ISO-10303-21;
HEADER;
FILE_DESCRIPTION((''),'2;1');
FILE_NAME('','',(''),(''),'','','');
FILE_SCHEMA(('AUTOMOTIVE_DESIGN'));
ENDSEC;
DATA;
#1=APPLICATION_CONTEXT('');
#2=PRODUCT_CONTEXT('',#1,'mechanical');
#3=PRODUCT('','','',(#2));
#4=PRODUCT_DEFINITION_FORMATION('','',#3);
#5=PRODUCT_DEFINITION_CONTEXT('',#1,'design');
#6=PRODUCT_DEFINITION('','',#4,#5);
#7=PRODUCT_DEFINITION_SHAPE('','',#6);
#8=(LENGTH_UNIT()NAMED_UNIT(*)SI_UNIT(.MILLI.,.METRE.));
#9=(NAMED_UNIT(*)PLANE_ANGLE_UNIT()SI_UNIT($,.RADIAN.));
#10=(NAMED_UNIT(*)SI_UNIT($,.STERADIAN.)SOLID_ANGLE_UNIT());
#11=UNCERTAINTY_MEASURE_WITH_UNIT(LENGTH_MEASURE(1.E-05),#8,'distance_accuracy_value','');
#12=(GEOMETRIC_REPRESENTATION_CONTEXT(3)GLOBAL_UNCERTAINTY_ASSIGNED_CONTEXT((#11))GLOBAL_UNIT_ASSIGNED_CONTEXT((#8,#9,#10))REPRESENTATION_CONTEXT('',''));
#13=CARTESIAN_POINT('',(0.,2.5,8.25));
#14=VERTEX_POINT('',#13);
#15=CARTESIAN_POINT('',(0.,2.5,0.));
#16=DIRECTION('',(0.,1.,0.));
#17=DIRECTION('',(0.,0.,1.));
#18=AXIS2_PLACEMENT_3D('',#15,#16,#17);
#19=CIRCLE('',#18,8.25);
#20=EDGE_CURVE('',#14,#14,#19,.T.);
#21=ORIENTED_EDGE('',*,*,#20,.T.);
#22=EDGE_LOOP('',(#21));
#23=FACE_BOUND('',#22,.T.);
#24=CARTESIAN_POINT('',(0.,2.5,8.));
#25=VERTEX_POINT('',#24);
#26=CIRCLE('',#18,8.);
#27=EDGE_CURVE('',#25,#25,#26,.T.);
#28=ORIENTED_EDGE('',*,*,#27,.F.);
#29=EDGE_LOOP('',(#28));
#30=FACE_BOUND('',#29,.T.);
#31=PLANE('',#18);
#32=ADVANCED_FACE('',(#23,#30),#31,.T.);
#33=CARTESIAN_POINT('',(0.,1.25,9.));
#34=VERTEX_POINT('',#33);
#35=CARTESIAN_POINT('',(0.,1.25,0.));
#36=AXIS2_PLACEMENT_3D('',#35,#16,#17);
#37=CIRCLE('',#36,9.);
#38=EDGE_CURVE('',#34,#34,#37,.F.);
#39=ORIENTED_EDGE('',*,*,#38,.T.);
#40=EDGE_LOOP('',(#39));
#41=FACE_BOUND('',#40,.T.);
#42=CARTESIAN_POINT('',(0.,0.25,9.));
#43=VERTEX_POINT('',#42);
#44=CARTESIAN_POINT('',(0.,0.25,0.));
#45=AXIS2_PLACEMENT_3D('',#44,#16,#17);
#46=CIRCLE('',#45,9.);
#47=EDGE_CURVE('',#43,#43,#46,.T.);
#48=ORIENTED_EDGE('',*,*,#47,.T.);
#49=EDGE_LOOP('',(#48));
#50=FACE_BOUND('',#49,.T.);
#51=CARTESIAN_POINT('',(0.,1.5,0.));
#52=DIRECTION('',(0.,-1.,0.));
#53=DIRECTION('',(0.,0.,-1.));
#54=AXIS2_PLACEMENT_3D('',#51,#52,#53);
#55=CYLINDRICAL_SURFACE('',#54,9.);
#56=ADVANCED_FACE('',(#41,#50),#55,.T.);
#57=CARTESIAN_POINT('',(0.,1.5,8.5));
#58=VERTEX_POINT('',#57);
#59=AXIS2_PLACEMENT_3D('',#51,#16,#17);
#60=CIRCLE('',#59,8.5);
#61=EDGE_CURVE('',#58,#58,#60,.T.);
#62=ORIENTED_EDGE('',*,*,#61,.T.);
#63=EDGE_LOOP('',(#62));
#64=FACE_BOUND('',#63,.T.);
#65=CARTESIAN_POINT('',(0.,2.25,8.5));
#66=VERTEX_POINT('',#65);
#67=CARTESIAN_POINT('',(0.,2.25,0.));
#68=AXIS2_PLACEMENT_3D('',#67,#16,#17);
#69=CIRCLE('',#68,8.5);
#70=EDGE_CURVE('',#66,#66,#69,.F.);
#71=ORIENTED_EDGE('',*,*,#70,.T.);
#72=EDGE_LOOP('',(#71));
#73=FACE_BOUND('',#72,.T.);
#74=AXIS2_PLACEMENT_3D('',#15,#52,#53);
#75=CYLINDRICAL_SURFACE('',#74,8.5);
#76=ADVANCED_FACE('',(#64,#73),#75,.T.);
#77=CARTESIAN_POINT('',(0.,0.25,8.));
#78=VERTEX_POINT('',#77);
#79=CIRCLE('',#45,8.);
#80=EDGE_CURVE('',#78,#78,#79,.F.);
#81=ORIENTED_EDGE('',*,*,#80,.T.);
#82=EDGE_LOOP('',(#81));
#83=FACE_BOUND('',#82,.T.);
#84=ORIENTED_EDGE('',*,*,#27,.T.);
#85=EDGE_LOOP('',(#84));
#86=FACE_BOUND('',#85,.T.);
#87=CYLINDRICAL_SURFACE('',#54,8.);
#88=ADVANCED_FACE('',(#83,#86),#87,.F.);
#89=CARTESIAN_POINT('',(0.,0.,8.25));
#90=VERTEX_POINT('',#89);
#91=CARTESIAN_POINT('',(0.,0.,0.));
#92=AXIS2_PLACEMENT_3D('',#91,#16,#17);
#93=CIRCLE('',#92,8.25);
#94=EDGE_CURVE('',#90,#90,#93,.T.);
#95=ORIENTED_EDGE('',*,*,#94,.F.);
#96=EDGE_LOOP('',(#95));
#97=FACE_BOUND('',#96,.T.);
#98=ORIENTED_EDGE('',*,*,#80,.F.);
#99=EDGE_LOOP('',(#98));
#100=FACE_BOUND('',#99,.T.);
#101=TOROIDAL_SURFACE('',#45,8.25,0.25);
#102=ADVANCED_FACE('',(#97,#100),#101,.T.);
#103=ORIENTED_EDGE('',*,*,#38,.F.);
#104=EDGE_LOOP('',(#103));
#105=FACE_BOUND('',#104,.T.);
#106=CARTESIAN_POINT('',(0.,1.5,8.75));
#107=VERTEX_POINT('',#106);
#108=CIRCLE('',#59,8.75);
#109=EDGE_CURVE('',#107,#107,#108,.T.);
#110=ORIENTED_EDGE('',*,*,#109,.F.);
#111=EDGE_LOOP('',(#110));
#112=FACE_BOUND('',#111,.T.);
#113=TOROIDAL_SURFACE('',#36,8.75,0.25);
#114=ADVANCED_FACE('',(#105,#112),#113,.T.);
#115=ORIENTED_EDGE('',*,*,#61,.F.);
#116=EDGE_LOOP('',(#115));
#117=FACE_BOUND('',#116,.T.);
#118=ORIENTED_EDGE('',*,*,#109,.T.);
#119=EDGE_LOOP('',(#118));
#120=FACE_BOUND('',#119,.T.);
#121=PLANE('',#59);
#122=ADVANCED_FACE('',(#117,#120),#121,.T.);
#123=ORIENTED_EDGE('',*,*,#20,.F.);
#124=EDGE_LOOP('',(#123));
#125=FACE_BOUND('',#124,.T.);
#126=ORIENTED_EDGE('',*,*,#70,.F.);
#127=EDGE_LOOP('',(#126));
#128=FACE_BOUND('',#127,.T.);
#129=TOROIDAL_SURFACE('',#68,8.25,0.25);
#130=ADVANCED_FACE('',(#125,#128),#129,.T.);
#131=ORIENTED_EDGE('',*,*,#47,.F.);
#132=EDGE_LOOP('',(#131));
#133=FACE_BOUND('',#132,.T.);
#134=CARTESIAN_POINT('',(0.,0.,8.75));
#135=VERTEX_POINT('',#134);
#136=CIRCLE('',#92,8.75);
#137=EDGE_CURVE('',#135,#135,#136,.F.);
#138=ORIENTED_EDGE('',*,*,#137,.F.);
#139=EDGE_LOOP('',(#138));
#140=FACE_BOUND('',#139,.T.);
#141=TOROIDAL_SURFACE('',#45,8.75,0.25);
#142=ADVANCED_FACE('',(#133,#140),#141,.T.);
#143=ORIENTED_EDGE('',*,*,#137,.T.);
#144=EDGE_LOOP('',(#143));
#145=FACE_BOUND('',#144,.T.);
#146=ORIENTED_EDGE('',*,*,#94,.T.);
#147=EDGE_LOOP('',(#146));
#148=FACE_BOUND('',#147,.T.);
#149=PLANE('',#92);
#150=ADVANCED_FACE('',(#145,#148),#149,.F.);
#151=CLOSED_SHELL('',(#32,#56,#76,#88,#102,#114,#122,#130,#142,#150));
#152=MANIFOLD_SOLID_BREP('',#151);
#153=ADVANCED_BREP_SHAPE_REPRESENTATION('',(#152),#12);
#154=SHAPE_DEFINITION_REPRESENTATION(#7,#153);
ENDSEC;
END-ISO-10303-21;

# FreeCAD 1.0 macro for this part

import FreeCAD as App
import Part
import Sketcher

V = App.Vector


def edges_at(feature, points):
    """Names of the edges that pass closest to the given points."""
    edges = feature.Shape.Edges
    near = lambda p: min(range(len(edges)), key=lambda i: edges[i].distToShape(Part.Vertex(*p))[0])
    return sorted({f"Edge{near(p) + 1}" for p in points})


def faces_at(feature, points):
    """Names of the faces that lie closest to the given points."""
    faces = feature.Shape.Faces
    near = lambda p: min(range(len(faces)), key=lambda i: faces[i].distToShape(Part.Vertex(*p))[0])
    return sorted({f"Face{near(p) + 1}" for p in points})

doc = App.newDocument("Part")
params = doc.addObject("Spreadsheet::Sheet", "Params")
for row, (alias, value) in enumerate([
    ("sketch1_diameter", "18 mm"),
    ("pad1_length", "1.5 mm"),
    ("sketch2_diameter", "17 mm"),
    ("pad2_length", "1 mm"),
    ("thickness_wall", "1 mm"),
    ("sketch3_diameter", "16 mm"),
    ("fillet_radius", "0.25 mm"),
    ("fillet2_radius", "0.25 mm"),
    ("fillet3_radius", "0.25 mm"),
    ("fillet4_radius", "0.25 mm"),
], start=1):
    params.set(f"A{row}", alias)
    params.set(f"B{row}", "=" + value)
    params.setAlias(f"B{row}", alias)

body = doc.addObject("PartDesign::Body", "Body")

# Sketch on XZ plane
sketch1 = body.newObject("Sketcher::SketchObject", "Sketch")
sketch1.AttachmentSupport = (doc.getObject("XZ_Plane"), [""])
sketch1.MapMode = "FlatFace"
sketch1.addGeometry(Part.Circle(V(0, 0, 0), V(0, 0, 1), 9), False)
sketch1.addConstraint(Sketcher.Constraint("Coincident", 0, 3, -1, 1))
sketch1.addConstraint(Sketcher.Constraint("Diameter", 0, 18.0))
sketch1.setExpression("Constraints[1]", "Params.sketch1_diameter")
pad1 = body.newObject("PartDesign::Pad", "Pad")
pad1.Profile = sketch1
pad1.setExpression("Length", "Params.pad1_length")
pad1.Reversed = True

# Sketch on XZ plane
sketch2 = body.newObject("Sketcher::SketchObject", "Sketch001")
sketch2.AttachmentSupport = (doc.getObject("XZ_Plane"), [""])
sketch2.MapMode = "FlatFace"
sketch2.AttachmentOffset = App.Placement(V(0, 0, -1.5), App.Rotation())
sketch2.addGeometry(Part.Circle(V(0, 0, 0), V(0, 0, 1), 8), False)
sketch2.addConstraint(Sketcher.Constraint("Coincident", 0, 3, -1, 1))
sketch2.addConstraint(Sketcher.Constraint("Diameter", 0, 17.0))
sketch2.setExpression("Constraints[1]", "Params.sketch2_diameter")
pad2 = body.newObject("PartDesign::Pad", "Pad001")
pad2.Profile = sketch2
pad2.setExpression("Length", "Params.pad2_length")
pad2.Reversed = True
doc.recompute()

thickness = body.newObject("PartDesign::Thickness", "Thickness")
thickness.Base = (pad2, faces_at(pad2, [(0, 0, 0)]))
thickness.setExpression("Value", "Params.thickness_wall")
thickness.Reversed = True
thickness.Join = "Intersection"

# Sketch on XZ plane
sketch3 = body.newObject("Sketcher::SketchObject", "Sketch002")
sketch3.AttachmentSupport = (doc.getObject("XZ_Plane"), [""])
sketch3.MapMode = "FlatFace"
sketch3.AttachmentOffset = App.Placement(V(0, 0, -2.5), App.Rotation())
sketch3.addGeometry(Part.Circle(V(0, 0, 0), V(0, 0, 1), 8), False)
sketch3.addConstraint(Sketcher.Constraint("Coincident", 0, 3, -1, 1))
sketch3.addConstraint(Sketcher.Constraint("Diameter", 0, 16.0))
sketch3.setExpression("Constraints[1]", "Params.sketch3_diameter")
pocket1 = body.newObject("PartDesign::Pocket", "Pocket")
pocket1.Profile = sketch3
pocket1.Type = "ThroughAll"
pocket1.Reversed = True
doc.recompute()

fillet = body.newObject("PartDesign::Fillet", "Fillet")
fillet.Base = (pocket1, edges_at(pocket1, [(0, 1.5, -9)]))
fillet.setExpression("Radius", "Params.fillet_radius")
doc.recompute()

fillet2 = body.newObject("PartDesign::Fillet", "Fillet001")
fillet2.Base = (fillet, edges_at(fillet, [(0, 2.5, -8.5)]))
fillet2.setExpression("Radius", "Params.fillet2_radius")
doc.recompute()

fillet3 = body.newObject("PartDesign::Fillet", "Fillet002")
fillet3.Base = (fillet2, edges_at(fillet2, [(0, 0, -9)]))
fillet3.setExpression("Radius", "Params.fillet3_radius")
doc.recompute()

fillet4 = body.newObject("PartDesign::Fillet", "Fillet003")
fillet4.Base = (fillet3, edges_at(fillet3, [(0, 0, -8)]))
fillet4.setExpression("Radius", "Params.fillet4_radius")

doc.recompute()
